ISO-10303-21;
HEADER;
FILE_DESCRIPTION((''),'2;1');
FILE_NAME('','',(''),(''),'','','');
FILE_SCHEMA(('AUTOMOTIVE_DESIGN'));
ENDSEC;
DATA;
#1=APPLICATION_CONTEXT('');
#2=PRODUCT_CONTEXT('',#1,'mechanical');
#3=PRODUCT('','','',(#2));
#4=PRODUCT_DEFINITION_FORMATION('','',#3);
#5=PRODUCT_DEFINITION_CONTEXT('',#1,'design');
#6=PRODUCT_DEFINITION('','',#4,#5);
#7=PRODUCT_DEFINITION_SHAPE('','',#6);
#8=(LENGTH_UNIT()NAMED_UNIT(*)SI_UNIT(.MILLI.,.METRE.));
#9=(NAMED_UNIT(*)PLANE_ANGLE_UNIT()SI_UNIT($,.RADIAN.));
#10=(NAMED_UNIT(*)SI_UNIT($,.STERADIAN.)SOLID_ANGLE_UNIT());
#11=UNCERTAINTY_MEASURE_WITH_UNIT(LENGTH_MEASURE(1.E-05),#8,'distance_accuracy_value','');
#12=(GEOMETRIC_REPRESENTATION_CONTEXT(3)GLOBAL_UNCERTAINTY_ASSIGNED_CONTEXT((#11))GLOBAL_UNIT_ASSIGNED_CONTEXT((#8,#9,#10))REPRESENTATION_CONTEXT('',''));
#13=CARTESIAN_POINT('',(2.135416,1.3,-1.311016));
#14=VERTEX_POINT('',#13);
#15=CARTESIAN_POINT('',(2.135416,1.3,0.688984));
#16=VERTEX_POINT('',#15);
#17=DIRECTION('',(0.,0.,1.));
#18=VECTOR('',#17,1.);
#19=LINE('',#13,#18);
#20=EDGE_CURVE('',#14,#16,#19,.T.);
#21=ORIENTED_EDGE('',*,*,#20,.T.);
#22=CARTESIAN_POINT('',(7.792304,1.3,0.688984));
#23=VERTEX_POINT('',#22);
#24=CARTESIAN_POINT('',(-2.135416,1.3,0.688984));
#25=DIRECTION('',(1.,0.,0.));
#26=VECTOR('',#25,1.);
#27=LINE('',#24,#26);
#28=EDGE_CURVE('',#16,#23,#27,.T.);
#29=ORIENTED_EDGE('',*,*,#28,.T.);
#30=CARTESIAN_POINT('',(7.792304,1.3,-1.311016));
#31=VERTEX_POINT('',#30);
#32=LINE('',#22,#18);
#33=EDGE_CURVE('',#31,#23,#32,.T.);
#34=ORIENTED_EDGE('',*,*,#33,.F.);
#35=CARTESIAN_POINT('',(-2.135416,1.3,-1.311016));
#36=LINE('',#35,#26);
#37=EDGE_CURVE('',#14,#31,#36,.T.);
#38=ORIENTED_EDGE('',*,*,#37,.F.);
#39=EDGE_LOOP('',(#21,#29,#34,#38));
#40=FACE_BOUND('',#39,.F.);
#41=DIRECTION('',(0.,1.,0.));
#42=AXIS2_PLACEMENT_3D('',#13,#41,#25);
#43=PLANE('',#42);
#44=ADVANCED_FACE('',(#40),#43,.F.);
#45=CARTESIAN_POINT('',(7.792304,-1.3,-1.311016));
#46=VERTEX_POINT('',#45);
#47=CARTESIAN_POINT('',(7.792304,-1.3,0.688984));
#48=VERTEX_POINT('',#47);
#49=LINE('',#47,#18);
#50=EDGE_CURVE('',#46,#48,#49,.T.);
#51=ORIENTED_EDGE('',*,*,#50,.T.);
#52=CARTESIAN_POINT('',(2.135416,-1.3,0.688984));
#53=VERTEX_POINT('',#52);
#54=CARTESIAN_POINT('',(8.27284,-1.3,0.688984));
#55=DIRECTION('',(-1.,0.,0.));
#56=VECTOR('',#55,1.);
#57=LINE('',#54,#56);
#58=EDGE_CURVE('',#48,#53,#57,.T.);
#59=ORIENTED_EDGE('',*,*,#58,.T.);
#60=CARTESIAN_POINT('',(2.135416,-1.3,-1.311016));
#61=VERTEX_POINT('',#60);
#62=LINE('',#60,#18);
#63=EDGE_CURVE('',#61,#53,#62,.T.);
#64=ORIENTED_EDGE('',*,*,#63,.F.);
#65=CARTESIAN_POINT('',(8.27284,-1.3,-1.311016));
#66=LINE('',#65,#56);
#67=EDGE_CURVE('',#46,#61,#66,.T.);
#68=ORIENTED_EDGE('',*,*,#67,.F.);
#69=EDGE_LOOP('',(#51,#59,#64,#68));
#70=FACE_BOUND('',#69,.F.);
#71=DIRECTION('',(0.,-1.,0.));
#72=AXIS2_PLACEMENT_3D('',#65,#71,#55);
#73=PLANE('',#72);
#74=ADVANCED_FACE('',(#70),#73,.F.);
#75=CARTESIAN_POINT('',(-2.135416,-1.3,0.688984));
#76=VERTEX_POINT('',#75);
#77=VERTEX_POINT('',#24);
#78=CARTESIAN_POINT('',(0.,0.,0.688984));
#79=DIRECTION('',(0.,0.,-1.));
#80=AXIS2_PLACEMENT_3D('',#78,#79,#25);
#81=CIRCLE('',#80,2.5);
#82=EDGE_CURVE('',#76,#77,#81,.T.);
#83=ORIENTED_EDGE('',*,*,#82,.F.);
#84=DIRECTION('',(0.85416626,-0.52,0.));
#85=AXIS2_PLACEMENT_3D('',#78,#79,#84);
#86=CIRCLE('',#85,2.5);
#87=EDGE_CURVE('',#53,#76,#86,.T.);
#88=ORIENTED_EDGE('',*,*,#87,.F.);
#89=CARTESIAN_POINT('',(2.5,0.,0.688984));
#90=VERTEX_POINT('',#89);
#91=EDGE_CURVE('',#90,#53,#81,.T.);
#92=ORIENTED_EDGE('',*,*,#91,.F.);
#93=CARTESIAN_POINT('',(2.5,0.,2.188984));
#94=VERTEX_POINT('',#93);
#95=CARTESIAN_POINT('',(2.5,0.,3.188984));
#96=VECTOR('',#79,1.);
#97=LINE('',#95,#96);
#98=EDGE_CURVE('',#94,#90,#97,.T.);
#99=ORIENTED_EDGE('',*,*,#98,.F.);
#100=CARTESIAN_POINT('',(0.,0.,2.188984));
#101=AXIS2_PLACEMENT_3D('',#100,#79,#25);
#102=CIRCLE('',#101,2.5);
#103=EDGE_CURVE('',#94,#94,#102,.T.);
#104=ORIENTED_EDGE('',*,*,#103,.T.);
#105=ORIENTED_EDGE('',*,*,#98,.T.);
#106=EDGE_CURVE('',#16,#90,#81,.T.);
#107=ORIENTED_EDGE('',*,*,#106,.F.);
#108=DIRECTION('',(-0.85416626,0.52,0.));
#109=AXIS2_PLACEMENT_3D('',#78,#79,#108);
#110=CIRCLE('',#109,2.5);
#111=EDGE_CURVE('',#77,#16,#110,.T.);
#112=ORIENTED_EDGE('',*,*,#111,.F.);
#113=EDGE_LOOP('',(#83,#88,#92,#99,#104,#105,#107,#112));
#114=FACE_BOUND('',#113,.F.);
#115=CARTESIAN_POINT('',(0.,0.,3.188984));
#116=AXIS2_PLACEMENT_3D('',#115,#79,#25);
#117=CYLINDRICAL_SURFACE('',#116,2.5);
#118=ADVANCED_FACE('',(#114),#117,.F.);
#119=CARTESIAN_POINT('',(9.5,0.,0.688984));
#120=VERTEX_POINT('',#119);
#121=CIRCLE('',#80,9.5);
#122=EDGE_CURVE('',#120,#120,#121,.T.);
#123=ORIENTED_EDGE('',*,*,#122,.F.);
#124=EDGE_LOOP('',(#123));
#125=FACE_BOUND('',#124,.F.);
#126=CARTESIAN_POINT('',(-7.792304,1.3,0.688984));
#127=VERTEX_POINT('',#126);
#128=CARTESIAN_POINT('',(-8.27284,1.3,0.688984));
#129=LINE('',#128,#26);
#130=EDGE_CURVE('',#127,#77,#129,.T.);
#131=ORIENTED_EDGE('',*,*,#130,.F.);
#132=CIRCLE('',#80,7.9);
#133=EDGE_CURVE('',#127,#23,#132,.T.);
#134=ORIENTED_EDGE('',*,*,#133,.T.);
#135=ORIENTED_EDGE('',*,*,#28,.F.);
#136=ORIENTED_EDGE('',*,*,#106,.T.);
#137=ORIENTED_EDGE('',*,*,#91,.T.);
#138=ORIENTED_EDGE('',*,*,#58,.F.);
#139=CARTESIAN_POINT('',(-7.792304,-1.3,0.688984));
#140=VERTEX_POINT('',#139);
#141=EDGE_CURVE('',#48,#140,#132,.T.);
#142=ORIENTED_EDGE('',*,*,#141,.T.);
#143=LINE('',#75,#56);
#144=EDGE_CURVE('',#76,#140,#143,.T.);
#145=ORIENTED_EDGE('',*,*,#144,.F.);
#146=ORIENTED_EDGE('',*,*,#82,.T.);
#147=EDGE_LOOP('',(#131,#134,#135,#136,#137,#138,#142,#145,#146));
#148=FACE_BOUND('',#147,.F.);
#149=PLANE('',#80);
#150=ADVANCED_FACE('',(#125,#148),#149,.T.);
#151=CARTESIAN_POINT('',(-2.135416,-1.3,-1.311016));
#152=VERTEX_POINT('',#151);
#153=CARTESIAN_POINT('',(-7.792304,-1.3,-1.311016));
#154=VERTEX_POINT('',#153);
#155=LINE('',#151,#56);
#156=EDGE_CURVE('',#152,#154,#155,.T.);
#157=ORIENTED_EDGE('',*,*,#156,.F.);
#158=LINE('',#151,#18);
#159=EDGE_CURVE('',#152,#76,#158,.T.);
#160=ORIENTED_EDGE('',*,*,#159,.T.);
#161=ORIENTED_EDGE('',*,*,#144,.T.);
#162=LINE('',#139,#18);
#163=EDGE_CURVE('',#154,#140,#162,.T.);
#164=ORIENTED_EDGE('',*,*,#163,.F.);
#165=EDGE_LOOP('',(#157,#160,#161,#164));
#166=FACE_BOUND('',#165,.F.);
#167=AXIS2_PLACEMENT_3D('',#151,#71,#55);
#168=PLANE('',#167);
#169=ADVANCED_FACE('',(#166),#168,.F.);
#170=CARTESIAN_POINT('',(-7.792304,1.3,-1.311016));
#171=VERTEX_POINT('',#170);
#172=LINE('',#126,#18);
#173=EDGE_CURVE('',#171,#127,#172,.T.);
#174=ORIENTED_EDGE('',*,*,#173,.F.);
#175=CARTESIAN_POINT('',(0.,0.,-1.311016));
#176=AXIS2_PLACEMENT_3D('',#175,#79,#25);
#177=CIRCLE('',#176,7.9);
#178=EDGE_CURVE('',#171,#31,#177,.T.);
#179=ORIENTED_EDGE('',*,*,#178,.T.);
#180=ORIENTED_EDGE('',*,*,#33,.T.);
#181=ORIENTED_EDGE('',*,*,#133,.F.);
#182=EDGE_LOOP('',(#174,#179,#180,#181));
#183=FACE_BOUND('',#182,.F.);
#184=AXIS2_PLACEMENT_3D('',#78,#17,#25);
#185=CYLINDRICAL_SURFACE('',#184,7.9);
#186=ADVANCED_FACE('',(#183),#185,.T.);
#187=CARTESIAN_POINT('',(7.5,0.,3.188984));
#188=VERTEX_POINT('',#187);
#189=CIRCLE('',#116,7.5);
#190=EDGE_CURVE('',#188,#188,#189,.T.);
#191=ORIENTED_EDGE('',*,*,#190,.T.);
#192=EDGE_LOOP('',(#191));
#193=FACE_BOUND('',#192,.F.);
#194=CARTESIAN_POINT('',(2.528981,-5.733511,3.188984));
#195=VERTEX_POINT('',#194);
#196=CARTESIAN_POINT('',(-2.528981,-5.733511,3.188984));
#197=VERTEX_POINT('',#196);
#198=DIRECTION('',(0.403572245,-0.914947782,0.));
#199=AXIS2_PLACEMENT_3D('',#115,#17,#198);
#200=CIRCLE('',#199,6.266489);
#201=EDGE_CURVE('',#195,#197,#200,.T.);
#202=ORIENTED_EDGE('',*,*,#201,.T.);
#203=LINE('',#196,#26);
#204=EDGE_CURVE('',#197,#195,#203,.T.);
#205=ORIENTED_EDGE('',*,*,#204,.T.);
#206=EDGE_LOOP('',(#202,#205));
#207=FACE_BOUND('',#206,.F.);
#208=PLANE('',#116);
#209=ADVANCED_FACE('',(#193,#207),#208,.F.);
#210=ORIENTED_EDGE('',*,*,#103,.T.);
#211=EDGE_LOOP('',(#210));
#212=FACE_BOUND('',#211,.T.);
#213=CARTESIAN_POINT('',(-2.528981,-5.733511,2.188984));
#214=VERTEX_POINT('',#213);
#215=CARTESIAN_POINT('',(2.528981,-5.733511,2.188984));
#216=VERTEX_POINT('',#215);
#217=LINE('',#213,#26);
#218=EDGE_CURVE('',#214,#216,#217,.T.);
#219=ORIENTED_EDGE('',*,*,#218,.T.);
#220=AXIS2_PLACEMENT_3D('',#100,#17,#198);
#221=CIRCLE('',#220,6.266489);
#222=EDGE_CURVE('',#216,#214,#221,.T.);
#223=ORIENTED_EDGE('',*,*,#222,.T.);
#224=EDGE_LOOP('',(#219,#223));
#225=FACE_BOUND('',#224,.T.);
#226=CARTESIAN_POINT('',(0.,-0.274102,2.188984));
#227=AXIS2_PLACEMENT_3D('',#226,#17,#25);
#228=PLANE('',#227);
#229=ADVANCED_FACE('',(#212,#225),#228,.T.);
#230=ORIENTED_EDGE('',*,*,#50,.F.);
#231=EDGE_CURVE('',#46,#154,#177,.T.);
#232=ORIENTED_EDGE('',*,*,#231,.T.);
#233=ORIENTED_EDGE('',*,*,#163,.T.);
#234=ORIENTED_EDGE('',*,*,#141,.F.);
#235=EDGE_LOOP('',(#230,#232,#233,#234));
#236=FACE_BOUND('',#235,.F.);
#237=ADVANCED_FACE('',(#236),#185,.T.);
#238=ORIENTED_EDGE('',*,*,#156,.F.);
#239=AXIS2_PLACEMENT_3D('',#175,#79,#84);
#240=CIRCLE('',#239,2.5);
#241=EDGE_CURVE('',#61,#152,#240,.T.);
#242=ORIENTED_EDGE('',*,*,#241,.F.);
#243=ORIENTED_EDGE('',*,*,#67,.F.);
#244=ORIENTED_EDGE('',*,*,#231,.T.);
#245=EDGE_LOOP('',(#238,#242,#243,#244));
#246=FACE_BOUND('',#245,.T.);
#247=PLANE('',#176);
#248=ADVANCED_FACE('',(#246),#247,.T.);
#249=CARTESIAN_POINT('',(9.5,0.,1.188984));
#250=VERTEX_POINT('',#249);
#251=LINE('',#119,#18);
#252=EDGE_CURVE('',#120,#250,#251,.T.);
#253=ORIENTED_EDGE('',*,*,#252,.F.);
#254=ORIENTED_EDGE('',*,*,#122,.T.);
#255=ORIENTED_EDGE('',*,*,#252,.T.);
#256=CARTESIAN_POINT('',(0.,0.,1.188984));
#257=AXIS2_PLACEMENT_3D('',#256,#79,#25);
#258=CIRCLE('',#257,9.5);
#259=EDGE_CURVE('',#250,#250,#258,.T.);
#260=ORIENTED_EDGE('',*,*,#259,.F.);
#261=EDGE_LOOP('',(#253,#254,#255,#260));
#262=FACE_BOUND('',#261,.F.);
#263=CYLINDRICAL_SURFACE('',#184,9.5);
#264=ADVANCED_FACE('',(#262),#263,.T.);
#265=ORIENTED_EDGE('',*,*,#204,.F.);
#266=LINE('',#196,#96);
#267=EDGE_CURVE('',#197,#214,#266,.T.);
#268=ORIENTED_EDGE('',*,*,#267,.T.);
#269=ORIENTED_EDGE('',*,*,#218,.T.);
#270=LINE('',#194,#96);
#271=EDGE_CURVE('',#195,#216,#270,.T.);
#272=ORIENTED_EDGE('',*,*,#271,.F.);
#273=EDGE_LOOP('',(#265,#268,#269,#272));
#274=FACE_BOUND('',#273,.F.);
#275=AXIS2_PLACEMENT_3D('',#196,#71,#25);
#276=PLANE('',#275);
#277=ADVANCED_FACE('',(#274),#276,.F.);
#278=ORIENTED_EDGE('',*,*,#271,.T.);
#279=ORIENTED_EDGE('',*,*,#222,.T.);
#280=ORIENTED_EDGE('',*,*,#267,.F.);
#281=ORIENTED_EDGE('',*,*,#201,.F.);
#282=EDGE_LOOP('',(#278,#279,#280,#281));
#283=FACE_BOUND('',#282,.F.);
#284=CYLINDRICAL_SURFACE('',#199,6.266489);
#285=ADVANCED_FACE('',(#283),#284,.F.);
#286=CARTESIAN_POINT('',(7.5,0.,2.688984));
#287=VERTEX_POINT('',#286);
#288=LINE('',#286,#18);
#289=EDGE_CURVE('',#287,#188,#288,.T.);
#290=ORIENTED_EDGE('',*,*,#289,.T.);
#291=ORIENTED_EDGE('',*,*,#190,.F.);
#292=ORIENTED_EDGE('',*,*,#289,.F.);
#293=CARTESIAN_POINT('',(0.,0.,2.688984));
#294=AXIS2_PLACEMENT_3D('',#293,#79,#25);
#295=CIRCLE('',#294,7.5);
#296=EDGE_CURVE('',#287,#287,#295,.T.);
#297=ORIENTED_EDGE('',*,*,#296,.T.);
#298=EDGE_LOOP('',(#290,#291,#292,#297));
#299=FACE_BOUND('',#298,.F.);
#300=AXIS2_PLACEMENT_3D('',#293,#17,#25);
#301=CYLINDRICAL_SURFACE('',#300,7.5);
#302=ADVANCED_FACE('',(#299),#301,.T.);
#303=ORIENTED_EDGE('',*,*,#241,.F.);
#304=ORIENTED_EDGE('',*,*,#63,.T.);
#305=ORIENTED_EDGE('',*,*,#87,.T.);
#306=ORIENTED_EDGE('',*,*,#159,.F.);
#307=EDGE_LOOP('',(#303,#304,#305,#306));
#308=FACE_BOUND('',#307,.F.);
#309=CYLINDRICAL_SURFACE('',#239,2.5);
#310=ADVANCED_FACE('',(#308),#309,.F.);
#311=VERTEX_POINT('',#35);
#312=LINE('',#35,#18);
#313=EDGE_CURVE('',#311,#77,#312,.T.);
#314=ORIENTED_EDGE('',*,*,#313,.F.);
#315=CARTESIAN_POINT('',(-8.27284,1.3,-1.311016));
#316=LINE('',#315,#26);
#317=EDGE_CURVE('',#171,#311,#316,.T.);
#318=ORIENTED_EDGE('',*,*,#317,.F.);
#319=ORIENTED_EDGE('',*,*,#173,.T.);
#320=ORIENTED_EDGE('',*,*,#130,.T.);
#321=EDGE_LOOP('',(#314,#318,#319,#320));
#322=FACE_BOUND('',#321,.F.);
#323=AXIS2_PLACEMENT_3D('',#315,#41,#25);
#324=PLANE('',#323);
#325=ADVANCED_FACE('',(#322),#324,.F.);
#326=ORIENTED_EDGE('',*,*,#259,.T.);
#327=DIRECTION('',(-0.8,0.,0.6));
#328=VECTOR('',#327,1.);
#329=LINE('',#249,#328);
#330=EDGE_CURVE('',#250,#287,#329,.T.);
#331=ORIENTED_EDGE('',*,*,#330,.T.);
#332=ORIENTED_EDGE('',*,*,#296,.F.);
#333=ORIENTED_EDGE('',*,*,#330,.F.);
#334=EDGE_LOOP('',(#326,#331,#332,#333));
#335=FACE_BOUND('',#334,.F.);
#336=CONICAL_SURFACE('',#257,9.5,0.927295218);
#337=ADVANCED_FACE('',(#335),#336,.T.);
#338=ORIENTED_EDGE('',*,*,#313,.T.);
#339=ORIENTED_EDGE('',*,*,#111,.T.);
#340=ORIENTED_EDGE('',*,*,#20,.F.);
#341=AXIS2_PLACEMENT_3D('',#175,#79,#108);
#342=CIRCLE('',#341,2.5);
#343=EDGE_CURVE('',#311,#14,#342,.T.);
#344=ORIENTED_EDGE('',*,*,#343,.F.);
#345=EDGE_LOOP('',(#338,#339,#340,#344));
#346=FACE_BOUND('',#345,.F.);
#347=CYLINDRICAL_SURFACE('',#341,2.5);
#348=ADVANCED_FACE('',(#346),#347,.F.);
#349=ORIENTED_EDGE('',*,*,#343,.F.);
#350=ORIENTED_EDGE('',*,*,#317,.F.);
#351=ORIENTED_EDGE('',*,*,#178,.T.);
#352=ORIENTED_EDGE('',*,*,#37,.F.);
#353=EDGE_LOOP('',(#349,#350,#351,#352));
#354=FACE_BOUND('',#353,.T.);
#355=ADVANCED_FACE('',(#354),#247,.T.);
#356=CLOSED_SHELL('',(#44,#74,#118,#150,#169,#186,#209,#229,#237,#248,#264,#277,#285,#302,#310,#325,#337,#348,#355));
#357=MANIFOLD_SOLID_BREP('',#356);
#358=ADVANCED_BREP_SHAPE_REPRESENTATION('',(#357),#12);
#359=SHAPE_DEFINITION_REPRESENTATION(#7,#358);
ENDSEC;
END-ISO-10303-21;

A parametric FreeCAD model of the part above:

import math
import FreeCAD as App
import Part
import Sketcher
from FreeCAD import Vector


def add_polygon(sketch, points):
    """Adds a closed chain of lines whose ends are joined by coincident constraints."""
    first, n = sketch.GeometryCount, len(points)
    for a, b in zip(points, points[1:] + points[:1]):
        sketch.addGeometry(Part.LineSegment(App.Vector(*a, 0), App.Vector(*b, 0)), False)
    for i in range(n):
        sketch.addConstraint(Sketcher.Constraint("Coincident", first + i, 2, first + (i + 1) % n, 1))

doc = App.newDocument("Part")
params = doc.addObject("Spreadsheet::Sheet", "Params")
for row, (alias, value) in enumerate([
    ("sketch1_width", "7 mm"),
    ("sketch1_width2", "5 mm"),
    ("sketch1_height", "2.5 mm"),
    ("sketch1_height2", "0.5 mm"),
    ("revolution_angle", "360 deg"),
    ("sketch2_diameter", "15.8 mm"),
    ("pad1_length", "2 mm"),
    ("sketch3_radius", "2.5 mm"),
    ("sketch3_height", "2.6 mm"),
    ("pocket1_length", "2 mm"),
    ("pocket2_length", "1 mm"),
], start=1):
    params.set(f"A{row}", alias)
    params.set(f"B{row}", "=" + value)
    params.setAlias(f"B{row}", alias)

body = doc.addObject("PartDesign::Body", "Body")

# Sketch on XZ plane
sketch1 = body.newObject("Sketcher::SketchObject", "Sketch")
sketch1.AttachmentSupport = (doc.getObject("XZ_Plane"), [""])
sketch1.MapMode = "FlatFace"
add_polygon(sketch1, [(2.5, 3.188984), (2.5, 0.688984), (9.5, 0.688984), (9.5, 1.188984), (7.5, 2.688984), (7.5, 3.188984)])  # lines 0-5
sketch1.addConstraint([
    Sketcher.Constraint("Vertical", 0),
    Sketcher.Constraint("Horizontal", 1),
    Sketcher.Constraint("Vertical", 2),
    Sketcher.Constraint("Vertical", 4),
    Sketcher.Constraint("Horizontal", 5),
    Sketcher.Constraint("Equal", 2, 4),
    Sketcher.Constraint("DistanceX", 1, 1, 1, 2, 7.0),
    Sketcher.Constraint("DistanceX", 5, 2, 5, 1, 5.0),
    Sketcher.Constraint("DistanceY", 0, 2, 0, 1, 2.5),
    Sketcher.Constraint("DistanceY", 2, 1, 2, 2, 0.5),
    Sketcher.Constraint("DistanceX", -1, 1, 0, 2, 2.5),
    Sketcher.Constraint("DistanceY", -1, 1, 0, 2, 0.688984),
])
sketch1.setExpression("Constraints[12]", "Params.sketch1_width")
sketch1.setExpression("Constraints[13]", "Params.sketch1_width2")
sketch1.setExpression("Constraints[14]", "Params.sketch1_height")
sketch1.setExpression("Constraints[15]", "Params.sketch1_height2")
revolution = body.newObject("PartDesign::Revolution", "Revolution")
revolution.Profile = sketch1
revolution.ReferenceAxis = (sketch1, ["V_Axis"])
revolution.setExpression("Angle", "Params.revolution_angle")

# Sketch on XY plane
sketch2 = body.newObject("Sketcher::SketchObject", "Sketch001")
sketch2.AttachmentSupport = (doc.getObject("XY_Plane"), [""])
sketch2.MapMode = "FlatFace"
sketch2.AttachmentOffset = App.Placement(Vector(0, 0, 0.688984), App.Rotation())
sketch2.addGeometry(Part.Circle(Vector(0, 0, 0), Vector(0, 0, 1), 7.9), False)
sketch2.addConstraint([
    Sketcher.Constraint("Coincident", 0, 3, -1, 1),
    Sketcher.Constraint("Diameter", 0, 15.8),
])
sketch2.setExpression("Constraints[1]", "Params.sketch2_diameter")
pad1 = body.newObject("PartDesign::Pad", "Pad")
pad1.Profile = sketch2
pad1.setExpression("Length", "Params.pad1_length")
pad1.Reversed = True

# Sketch on XY plane
sketch3 = body.newObject("Sketcher::SketchObject", "Sketch002")
sketch3.AttachmentSupport = (doc.getObject("XY_Plane"), [""])
sketch3.MapMode = "FlatFace"
sketch3.AttachmentOffset = App.Placement(Vector(0, 0, -1.311016), App.Rotation())
sketch3.addGeometry([
    Part.ArcOfCircle(Part.Circle(Vector(0, 0, 0), Vector(0, 0, 1), 2.5), math.radians(31.332252), math.radians(148.667748)),  # 0
    Part.LineSegment(Vector(2.135416, 1.3, 0), Vector(8.27284, 1.3, 0)),  # 1
    Part.LineSegment(Vector(8.27284, 1.3, 0), Vector(8.27284, -1.3, 0)),  # 2
    Part.LineSegment(Vector(8.27284, -1.3, 0), Vector(2.135416, -1.3, 0)),  # 3
    Part.ArcOfCircle(Part.Circle(Vector(0, 0, 0), Vector(0, 0, 1), 2.5), math.radians(-148.667748), math.radians(-31.332252)),  # 4
    Part.LineSegment(Vector(-2.135416, -1.3, 0), Vector(-8.27284, -1.3, 0)),  # 5
    Part.LineSegment(Vector(-8.27284, -1.3, 0), Vector(-8.27284, 1.3, 0)),  # 6
    Part.LineSegment(Vector(-8.27284, 1.3, 0), Vector(-2.135416, 1.3, 0)),  # 7
], False)
sketch3.addConstraint([
    Sketcher.Constraint("Coincident", 0, 1, 1, 1),
    Sketcher.Constraint("Coincident", 1, 2, 2, 1),
    Sketcher.Constraint("Coincident", 2, 2, 3, 1),
    Sketcher.Constraint("Coincident", 3, 2, 4, 2),
    Sketcher.Constraint("Coincident", 4, 1, 5, 1),
    Sketcher.Constraint("Coincident", 5, 2, 6, 1),
    Sketcher.Constraint("Coincident", 6, 2, 7, 1),
    Sketcher.Constraint("Coincident", 7, 2, 0, 2),
    Sketcher.Constraint("Horizontal", 1),
    Sketcher.Constraint("Vertical", 2),
    Sketcher.Constraint("Horizontal", 3),
    Sketcher.Constraint("Horizontal", 5),
    Sketcher.Constraint("Vertical", 6),
    Sketcher.Constraint("Horizontal", 7),
    Sketcher.Constraint("Coincident", 0, 3, -1, 1),
    Sketcher.Constraint("Coincident", 4, 3, -1, 1),
    Sketcher.Constraint("Equal", 0, 4),
    Sketcher.Constraint("Symmetric", 1, 2, 5, 2, -1, 1),
    Sketcher.Constraint("Horizontal", 3, 2, 4, 1),
    Sketcher.Constraint("Horizontal", 1, 2, 6, 2),
    Sketcher.Constraint("Radius", 0, 2.5),
    Sketcher.Constraint("DistanceY", 2, 2, 2, 1, 2.6),
    Sketcher.Constraint("DistanceX", 1, 1, 1, 2, 6.137424),
])
sketch3.setExpression("Constraints[20]", "Params.sketch3_radius")
sketch3.setExpression("Constraints[21]", "Params.sketch3_height")
pocket1 = body.newObject("PartDesign::Pocket", "Pocket")
pocket1.Profile = sketch3
pocket1.setExpression("Length", "Params.pocket1_length")
pocket1.Reversed = True

# Sketch on XY plane
sketch4 = body.newObject("Sketcher::SketchObject", "Sketch003")
sketch4.AttachmentSupport = (doc.getObject("XY_Plane"), [""])
sketch4.MapMode = "FlatFace"
sketch4.AttachmentOffset = App.Placement(Vector(0, 0, 3.188984), App.Rotation())
sketch4.addGeometry([
    Part.ArcOfCircle(Part.Circle(Vector(0, 0, 0), Vector(0, 0, 1), 6.266489), math.radians(-66.198312), math.radians(246.198312)),
    Part.LineSegment(Vector(-2.528981, -5.733511, 0), Vector(2.528981, -5.733511, 0)),
], False)
sketch4.addConstraint([
    Sketcher.Constraint("Coincident", 0, 1, 1, 2),
    Sketcher.Constraint("Coincident", 1, 1, 0, 2),
    Sketcher.Constraint("Horizontal", 1),
    Sketcher.Constraint("Coincident", 0, 3, -1, 1),
    Sketcher.Constraint("Radius", 0, 6.266489),
    Sketcher.Constraint("DistanceX", 1, 1, 1, 2, 5.057962),
])
pocket2 = body.newObject("PartDesign::Pocket", "Pocket001")
pocket2.Profile = sketch4
pocket2.setExpression("Length", "Params.pocket2_length")

doc.recompute()
